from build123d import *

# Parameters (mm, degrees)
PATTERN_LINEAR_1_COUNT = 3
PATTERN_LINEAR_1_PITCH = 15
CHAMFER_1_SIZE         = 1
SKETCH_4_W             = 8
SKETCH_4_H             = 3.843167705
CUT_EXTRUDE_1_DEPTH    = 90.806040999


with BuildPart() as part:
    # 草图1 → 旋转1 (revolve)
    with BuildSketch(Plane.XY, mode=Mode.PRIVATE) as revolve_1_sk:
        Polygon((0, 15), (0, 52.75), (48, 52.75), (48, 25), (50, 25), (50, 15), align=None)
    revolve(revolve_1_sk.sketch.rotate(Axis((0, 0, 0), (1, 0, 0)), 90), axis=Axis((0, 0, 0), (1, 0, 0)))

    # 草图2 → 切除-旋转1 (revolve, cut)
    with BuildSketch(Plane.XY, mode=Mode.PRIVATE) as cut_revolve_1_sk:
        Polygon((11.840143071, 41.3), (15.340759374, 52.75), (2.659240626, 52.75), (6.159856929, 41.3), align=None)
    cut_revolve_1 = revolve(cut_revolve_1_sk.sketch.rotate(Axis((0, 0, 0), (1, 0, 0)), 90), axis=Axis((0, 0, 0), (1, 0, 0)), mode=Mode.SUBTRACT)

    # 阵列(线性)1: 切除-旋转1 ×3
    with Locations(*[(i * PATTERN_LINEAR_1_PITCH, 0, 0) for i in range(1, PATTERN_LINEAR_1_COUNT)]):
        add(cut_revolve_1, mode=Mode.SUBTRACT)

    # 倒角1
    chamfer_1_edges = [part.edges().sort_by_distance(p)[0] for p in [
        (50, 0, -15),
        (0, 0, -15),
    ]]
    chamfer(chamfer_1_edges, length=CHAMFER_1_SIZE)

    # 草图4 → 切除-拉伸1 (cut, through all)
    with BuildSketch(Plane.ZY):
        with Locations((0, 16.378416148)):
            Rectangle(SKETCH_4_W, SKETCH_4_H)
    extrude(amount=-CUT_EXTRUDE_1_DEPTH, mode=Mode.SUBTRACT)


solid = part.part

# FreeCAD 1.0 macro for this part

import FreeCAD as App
import Part
import Sketcher
Q = App.Units.Quantity


def edges_at(feature, points):
    """Names of the edges that pass closest to the given points."""
    edges = feature.Shape.Edges
    near = lambda p: min(range(len(edges)), key=lambda i: edges[i].distToShape(Part.Vertex(*p))[0])
    return sorted({f"Edge{near(p) + 1}" for p in points})

doc = App.newDocument("Part")
body = doc.addObject("PartDesign::Body", "Body")

# Sketch on XY plane
sketch1 = body.newObject("Sketcher::SketchObject", "Sketch")
sketch1.AttachmentSupport = (doc.getObject("XY_Plane"), [""])
sketch1.MapMode = "FlatFace"
sketch1.addGeometry(Part.LineSegment(App.Vector(0, 52.75, 0), App.Vector(0, 15, 0)), False)
sketch1.addGeometry(Part.LineSegment(App.Vector(0, 15, 0), App.Vector(50, 15, 0)), False)
sketch1.addGeometry(Part.LineSegment(App.Vector(50, 15, 0), App.Vector(50, 25, 0)), False)
sketch1.addGeometry(Part.LineSegment(App.Vector(50, 25, 0), App.Vector(48, 25, 0)), False)
sketch1.addGeometry(Part.LineSegment(App.Vector(48, 25, 0), App.Vector(48, 52.75, 0)), False)
sketch1.addGeometry(Part.LineSegment(App.Vector(48, 52.75, 0), App.Vector(0, 52.75, 0)), False)
sketch1.addConstraint(Sketcher.Constraint("Coincident", 0, 2, 1, 1))
sketch1.addConstraint(Sketcher.Constraint("Coincident", 1, 2, 2, 1))
sketch1.addConstraint(Sketcher.Constraint("Coincident", 2, 2, 3, 1))
sketch1.addConstraint(Sketcher.Constraint("Coincident", 3, 2, 4, 1))
sketch1.addConstraint(Sketcher.Constraint("Coincident", 4, 2, 5, 1))
sketch1.addConstraint(Sketcher.Constraint("Coincident", 5, 2, 0, 1))
sketch1.addConstraint(Sketcher.Constraint("Vertical", 0))
sketch1.addConstraint(Sketcher.Constraint("Horizontal", 1))
sketch1.addConstraint(Sketcher.Constraint("Vertical", 2))
sketch1.addConstraint(Sketcher.Constraint("Horizontal", 3))
sketch1.addConstraint(Sketcher.Constraint("Vertical", 4))
sketch1.addConstraint(Sketcher.Constraint("Horizontal", 5))
sketch1.addConstraint(Sketcher.Constraint("PointOnObject", 0, 2, -2))
sketch1.addConstraint(Sketcher.Constraint("DistanceX", 1, 1, 1, 2, Q("50 mm")))
sketch1.addConstraint(Sketcher.Constraint("DistanceX", 3, 2, 3, 1, Q("2 mm")))
sketch1.addConstraint(Sketcher.Constraint("DistanceY", 2, 1, 2, 2, Q("10 mm")))
sketch1.addConstraint(Sketcher.Constraint("DistanceY", -1, 1, 0, 2, Q("15 mm")))
sketch1.addConstraint(Sketcher.Constraint("DistanceY", 0, 2, 0, 1, Q("37.75 mm")))
revolution = body.newObject("PartDesign::Revolution", "Revolution")
revolution.Profile = sketch1
revolution.ReferenceAxis = (sketch1, ["H_Axis"])
revolution.Angle = 360

# Sketch on XY plane
sketch2 = body.newObject("Sketcher::SketchObject", "Sketch001")
sketch2.AttachmentSupport = (doc.getObject("XY_Plane"), [""])
sketch2.MapMode = "FlatFace"
sketch2.addGeometry(Part.LineSegment(App.Vector(11.840143, 41.3, 0), App.Vector(15.340759, 52.75, 0)), False)
sketch2.addGeometry(Part.LineSegment(App.Vector(15.340759, 52.75, 0), App.Vector(2.659241, 52.75, 0)), False)
sketch2.addGeometry(Part.LineSegment(App.Vector(2.659241, 52.75, 0), App.Vector(6.159857, 41.3, 0)), False)
sketch2.addGeometry(Part.LineSegment(App.Vector(6.159857, 41.3, 0), App.Vector(11.840143, 41.3, 0)), False)
sketch2.addConstraint(Sketcher.Constraint("Coincident", 0, 2, 1, 1))
sketch2.addConstraint(Sketcher.Constraint("Coincident", 1, 2, 2, 1))
sketch2.addConstraint(Sketcher.Constraint("Coincident", 2, 2, 3, 1))
sketch2.addConstraint(Sketcher.Constraint("Coincident", 3, 2, 0, 1))
sketch2.addConstraint(Sketcher.Constraint("Horizontal", 1))
sketch2.addConstraint(Sketcher.Constraint("Horizontal", 3))
sketch2.addConstraint(Sketcher.Constraint("Equal", 0, 2))
sketch2.addConstraint(Sketcher.Constraint("Angle", 0, Q("73 deg")))
sketch2.addConstraint(Sketcher.Constraint("DistanceY", -1, 1, 2, 2, Q("41.3 mm")))
sketch2.addConstraint(Sketcher.Constraint("DistanceY", -1, 1, 0, 2, Q("52.75 mm")))
sketch2.addConstraint(Sketcher.Constraint("DistanceX", 1, 2, 1, 1, Q("12.681519 mm")))
sketch2.addConstraint(Sketcher.Constraint("DistanceX", -1, 1, 0, 2, Q("15.340759 mm")))
groove = body.newObject("PartDesign::Groove", "Groove")
groove.Profile = sketch2
groove.ReferenceAxis = (sketch2, ["H_Axis"])
groove.Angle = 360
doc.recompute()

linearpattern = body.newObject("PartDesign::LinearPattern", "LinearPattern")
linearpattern.Originals = [groove]
linearpattern.Direction = (doc.getObject("X_Axis"), [""])
linearpattern.Mode = "offset"
linearpattern.Offset = 15
linearpattern.Occurrences = 3
body.Tip = linearpattern
doc.recompute()

chamfer = body.newObject("PartDesign::Chamfer", "Chamfer")
chamfer.Base = (linearpattern, edges_at(linearpattern, [(50, 0, -15), (0, 0, -15)]))
chamfer.Size = 1

# Sketch on YZ plane
sketch3 = body.newObject("Sketcher::SketchObject", "Sketch002")
sketch3.AttachmentSupport = (doc.getObject("YZ_Plane"), [""])
sketch3.MapMode = "FlatFace"
sketch3.addGeometry(Part.LineSegment(App.Vector(18.3, -4, 0), App.Vector(14.456832, -4, 0)), False)
sketch3.addGeometry(Part.LineSegment(App.Vector(14.456832, -4, 0), App.Vector(14.456832, 4, 0)), False)
sketch3.addGeometry(Part.LineSegment(App.Vector(14.456832, 4, 0), App.Vector(18.3, 4, 0)), False)
sketch3.addGeometry(Part.LineSegment(App.Vector(18.3, 4, 0), App.Vector(18.3, -4, 0)), False)
sketch3.addConstraint(Sketcher.Constraint("Coincident", 0, 2, 1, 1))
sketch3.addConstraint(Sketcher.Constraint("Coincident", 1, 2, 2, 1))
sketch3.addConstraint(Sketcher.Constraint("Coincident", 2, 2, 3, 1))
sketch3.addConstraint(Sketcher.Constraint("Coincident", 3, 2, 0, 1))
sketch3.addConstraint(Sketcher.Constraint("Horizontal", 0))
sketch3.addConstraint(Sketcher.Constraint("Vertical", 1))
sketch3.addConstraint(Sketcher.Constraint("Horizontal", 2))
sketch3.addConstraint(Sketcher.Constraint("Vertical", 3))
sketch3.addConstraint(Sketcher.Constraint("DistanceY", 1, 1, 1, 2, Q("8 mm")))
sketch3.addConstraint(Sketcher.Constraint("DistanceY", 0, 2, -1, 1, Q("4 mm")))
sketch3.addConstraint(Sketcher.Constraint("DistanceX", -1, 1, 2, 2, Q("18.3 mm")))
sketch3.addConstraint(Sketcher.Constraint("DistanceX", 0, 2, 0, 1, Q("3.843168 mm")))
pocket1 = body.newObject("PartDesign::Pocket", "Pocket")
pocket1.Profile = sketch3
pocket1.Type = "ThroughAll"
pocket1.Reversed = True

doc.recompute()
